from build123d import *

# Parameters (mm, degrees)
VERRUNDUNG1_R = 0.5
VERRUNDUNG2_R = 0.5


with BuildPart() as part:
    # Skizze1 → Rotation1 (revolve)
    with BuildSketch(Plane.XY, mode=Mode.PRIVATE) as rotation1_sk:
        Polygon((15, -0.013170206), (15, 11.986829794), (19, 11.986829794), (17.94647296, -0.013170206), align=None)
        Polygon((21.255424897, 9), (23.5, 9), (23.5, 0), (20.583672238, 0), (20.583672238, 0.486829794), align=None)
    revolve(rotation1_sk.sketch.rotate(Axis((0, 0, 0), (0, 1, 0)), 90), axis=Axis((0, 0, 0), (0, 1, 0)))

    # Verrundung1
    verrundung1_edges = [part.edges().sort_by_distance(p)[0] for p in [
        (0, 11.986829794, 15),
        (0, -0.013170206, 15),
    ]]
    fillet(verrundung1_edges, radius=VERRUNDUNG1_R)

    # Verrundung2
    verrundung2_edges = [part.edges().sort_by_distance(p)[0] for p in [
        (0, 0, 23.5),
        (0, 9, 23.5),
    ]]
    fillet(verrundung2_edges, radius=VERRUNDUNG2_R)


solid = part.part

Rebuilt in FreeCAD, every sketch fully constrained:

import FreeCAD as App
import Part
import Sketcher


def edges_at(feature, points):
    """Names of the edges that pass closest to the given points."""
    edges = feature.Shape.Edges
    near = lambda p: min(range(len(edges)), key=lambda i: edges[i].distToShape(Part.Vertex(*p))[0])
    return sorted({f"Edge{near(p) + 1}" for p in points})

doc = App.newDocument("Part")
body = doc.addObject("PartDesign::Body", "Body")
body.AllowCompound = True

# Sketch on XY plane
sketch1 = doc.addObject("Sketcher::SketchObject", "Sketch")
body.addObject(sketch1)
sketch1.AttachmentSupport = (doc.XY_Plane, [""])
sketch1.MapMode = "FlatFace"
sketch1.addGeometry([
    Part.LineSegment(App.Vector(15, 11.99, 0), App.Vector(15, -0.01, 0)),  # 0
    Part.LineSegment(App.Vector(15, -0.01, 0), App.Vector(17.95, -0.01, 0)),  # 1
    Part.LineSegment(App.Vector(17.95, -0.01, 0), App.Vector(19, 11.99, 0)),  # 2
    Part.LineSegment(App.Vector(19, 11.99, 0), App.Vector(15, 11.99, 0)),  # 3
    Part.LineSegment(App.Vector(23.5, 9, 0), App.Vector(21.26, 9, 0)),  # 4
    Part.LineSegment(App.Vector(21.26, 9, 0), App.Vector(20.58, 0.49, 0)),  # 5
    Part.LineSegment(App.Vector(20.58, 0.49, 0), App.Vector(20.58, 0, 0)),  # 6
    Part.LineSegment(App.Vector(20.58, 0, 0), App.Vector(23.5, 0, 0)),  # 7
    Part.LineSegment(App.Vector(23.5, 0, 0), App.Vector(23.5, 9, 0)),  # 8
], False)
sketch1.addConstraint([
    Sketcher.Constraint("Coincident", 0, 2, 1, 1),
    Sketcher.Constraint("Coincident", 1, 2, 2, 1),
    Sketcher.Constraint("Coincident", 2, 2, 3, 1),
    Sketcher.Constraint("Coincident", 3, 2, 0, 1),
    Sketcher.Constraint("Coincident", 4, 2, 5, 1),
    Sketcher.Constraint("Coincident", 5, 2, 6, 1),
    Sketcher.Constraint("Coincident", 6, 2, 7, 1),
    Sketcher.Constraint("Coincident", 7, 2, 8, 1),
    Sketcher.Constraint("Coincident", 8, 2, 4, 1),
    Sketcher.Constraint("Vertical", 0),
    Sketcher.Constraint("Horizontal", 1),
    Sketcher.Constraint("Horizontal", 3),
    Sketcher.Constraint("Horizontal", 4),
    Sketcher.Constraint("Vertical", 6),
    Sketcher.Constraint("Horizontal", 7),
    Sketcher.Constraint("Vertical", 8),
    Sketcher.Constraint("PointOnObject", 6, 2, -1),
    Sketcher.Constraint("DistanceX", 3, 2, 3, 1, 4.0),
    Sketcher.Constraint("DistanceY", 0, 2, 0, 1, 12.0),
    Sketcher.Constraint("DistanceY", 8, 1, 8, 2, 9.0),
    Sketcher.Constraint("DistanceX", -1, 1, 0, 2, 15.0),
    Sketcher.Constraint("DistanceX", -1, 1, 7, 2, 23.5),
    Sketcher.Constraint("DistanceY", 1, 2, 5, 2, 0.5),
    Sketcher.Constraint("DistanceY", 6, 2, 6, 1, 0.48683),
    Sketcher.Constraint("DistanceX", 1, 2, 5, 2, 2.637199),
    Sketcher.Constraint("DistanceX", 1, 1, 1, 2, 2.946473),
    Sketcher.Constraint("DistanceX", 4, 2, 4, 1, 2.244575),
])
revolution = doc.addObject("PartDesign::Revolution", "Revolution")
body.addObject(revolution)
revolution.Profile = sketch1
revolution.ReferenceAxis = (sketch1, ["V_Axis"])
revolution.Angle = 360
doc.recompute()

fillet = doc.addObject("PartDesign::Fillet", "Fillet")
body.addObject(fillet)
fillet.Base = (revolution, edges_at(revolution, [(0, 11.987, 15), (0, -0.013, 15)]))
fillet.Radius = 0.5
doc.recompute()

fillet2 = doc.addObject("PartDesign::Fillet", "Fillet001")
body.addObject(fillet2)
fillet2.Base = (fillet, edges_at(fillet, [(0, 0, 23.5), (0, 9, 23.5)]))
fillet2.Radius = 0.5

doc.recompute()
